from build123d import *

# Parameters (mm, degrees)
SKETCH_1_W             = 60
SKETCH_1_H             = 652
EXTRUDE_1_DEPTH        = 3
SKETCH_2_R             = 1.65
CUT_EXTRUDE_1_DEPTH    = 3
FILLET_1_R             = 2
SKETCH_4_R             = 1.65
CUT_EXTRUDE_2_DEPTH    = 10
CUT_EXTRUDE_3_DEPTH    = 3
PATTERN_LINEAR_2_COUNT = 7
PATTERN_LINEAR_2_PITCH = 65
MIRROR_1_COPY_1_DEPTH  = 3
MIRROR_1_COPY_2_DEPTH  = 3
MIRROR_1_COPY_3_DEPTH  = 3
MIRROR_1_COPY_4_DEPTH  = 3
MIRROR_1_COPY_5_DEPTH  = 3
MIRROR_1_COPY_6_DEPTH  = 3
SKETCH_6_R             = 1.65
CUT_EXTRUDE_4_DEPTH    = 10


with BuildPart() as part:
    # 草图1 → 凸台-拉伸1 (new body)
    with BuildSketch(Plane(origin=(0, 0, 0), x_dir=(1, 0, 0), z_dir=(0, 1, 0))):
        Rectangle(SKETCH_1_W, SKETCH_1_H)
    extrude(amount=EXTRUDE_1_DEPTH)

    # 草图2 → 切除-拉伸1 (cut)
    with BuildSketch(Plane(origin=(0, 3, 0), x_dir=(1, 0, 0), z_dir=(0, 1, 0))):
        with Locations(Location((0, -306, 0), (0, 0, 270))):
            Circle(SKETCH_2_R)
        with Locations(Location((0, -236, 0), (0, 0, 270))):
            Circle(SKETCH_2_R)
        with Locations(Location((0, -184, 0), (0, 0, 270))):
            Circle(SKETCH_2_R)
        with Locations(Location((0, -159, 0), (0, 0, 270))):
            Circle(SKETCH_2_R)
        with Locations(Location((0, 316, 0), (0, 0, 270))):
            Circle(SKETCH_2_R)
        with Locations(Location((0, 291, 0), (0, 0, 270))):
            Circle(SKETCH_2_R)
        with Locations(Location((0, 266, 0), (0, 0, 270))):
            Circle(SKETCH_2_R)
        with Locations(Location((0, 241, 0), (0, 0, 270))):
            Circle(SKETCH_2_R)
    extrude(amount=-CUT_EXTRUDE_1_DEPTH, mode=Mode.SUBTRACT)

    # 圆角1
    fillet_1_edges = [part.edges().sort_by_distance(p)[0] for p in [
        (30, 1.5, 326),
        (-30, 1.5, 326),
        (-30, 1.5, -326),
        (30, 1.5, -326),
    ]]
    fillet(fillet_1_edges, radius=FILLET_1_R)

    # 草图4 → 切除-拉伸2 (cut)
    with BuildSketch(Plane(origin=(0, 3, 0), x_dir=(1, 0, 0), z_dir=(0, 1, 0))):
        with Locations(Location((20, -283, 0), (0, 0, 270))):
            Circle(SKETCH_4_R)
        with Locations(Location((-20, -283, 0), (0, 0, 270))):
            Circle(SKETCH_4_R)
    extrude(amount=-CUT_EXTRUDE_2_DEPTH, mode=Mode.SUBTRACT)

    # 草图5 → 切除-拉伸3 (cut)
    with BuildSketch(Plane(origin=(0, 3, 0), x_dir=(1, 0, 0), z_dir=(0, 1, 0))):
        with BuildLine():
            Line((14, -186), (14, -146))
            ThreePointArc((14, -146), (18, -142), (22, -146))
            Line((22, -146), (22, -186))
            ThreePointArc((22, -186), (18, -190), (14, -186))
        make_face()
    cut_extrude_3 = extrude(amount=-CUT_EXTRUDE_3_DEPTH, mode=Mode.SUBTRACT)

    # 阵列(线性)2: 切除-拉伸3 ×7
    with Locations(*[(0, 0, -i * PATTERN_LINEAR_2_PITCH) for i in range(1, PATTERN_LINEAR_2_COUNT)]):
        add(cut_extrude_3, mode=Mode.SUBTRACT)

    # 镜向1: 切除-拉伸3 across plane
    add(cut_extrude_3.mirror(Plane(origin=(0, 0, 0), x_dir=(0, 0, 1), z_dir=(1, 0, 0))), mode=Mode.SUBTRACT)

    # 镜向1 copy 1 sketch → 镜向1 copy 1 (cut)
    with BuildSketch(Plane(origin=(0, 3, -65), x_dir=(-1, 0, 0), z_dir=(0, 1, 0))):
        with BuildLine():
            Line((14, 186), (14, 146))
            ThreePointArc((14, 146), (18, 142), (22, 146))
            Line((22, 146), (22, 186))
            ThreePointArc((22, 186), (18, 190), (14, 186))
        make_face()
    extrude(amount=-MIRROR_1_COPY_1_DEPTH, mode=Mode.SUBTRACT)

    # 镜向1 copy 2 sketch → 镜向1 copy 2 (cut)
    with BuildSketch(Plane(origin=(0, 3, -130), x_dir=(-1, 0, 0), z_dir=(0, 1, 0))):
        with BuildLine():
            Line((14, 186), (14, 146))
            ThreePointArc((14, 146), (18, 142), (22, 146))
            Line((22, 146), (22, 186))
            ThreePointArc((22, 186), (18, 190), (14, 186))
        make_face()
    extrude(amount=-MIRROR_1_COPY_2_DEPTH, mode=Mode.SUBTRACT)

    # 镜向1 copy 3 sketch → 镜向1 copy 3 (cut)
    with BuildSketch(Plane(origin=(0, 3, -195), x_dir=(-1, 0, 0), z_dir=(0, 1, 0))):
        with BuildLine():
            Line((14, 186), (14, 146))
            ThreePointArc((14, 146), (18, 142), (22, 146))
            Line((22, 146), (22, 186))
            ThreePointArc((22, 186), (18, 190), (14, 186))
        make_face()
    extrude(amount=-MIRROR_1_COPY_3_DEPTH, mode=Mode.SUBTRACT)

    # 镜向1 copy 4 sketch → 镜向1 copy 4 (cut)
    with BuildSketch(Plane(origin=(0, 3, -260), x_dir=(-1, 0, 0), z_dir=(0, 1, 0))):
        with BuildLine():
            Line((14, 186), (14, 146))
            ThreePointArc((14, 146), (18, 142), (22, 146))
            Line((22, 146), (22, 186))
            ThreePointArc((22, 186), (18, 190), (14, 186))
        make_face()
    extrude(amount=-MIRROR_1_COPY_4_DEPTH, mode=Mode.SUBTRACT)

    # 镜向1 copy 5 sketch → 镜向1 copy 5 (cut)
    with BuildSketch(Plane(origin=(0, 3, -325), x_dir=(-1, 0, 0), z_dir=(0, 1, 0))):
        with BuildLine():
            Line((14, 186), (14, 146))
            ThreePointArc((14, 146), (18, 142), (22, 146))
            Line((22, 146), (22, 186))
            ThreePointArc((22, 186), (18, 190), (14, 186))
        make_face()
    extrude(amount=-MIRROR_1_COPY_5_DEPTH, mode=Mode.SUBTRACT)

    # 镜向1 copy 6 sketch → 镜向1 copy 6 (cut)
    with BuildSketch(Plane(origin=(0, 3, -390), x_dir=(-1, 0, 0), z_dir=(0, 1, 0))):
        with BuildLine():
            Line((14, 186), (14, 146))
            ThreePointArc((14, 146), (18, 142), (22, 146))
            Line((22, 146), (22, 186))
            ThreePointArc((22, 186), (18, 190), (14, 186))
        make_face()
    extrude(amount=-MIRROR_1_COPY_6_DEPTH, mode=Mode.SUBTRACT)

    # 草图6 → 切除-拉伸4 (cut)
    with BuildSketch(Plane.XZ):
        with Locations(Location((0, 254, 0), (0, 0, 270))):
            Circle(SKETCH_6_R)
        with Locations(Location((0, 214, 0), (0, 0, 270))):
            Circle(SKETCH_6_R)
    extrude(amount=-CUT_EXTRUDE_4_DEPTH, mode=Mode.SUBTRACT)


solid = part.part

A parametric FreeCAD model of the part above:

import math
import FreeCAD as App
import Part
import Sketcher

V = App.Vector
Q = App.Units.Quantity


def edges_at(feature, points):
    """Names of the edges that pass closest to the given points."""
    edges = feature.Shape.Edges
    near = lambda p: min(range(len(edges)), key=lambda i: edges[i].distToShape(Part.Vertex(*p))[0])
    return sorted({f"Edge{near(p) + 1}" for p in points})


def add_polygon(sketch, points):
    """Adds a closed chain of lines whose ends are joined by coincident constraints."""
    first, n = sketch.GeometryCount, len(points)
    for a, b in zip(points, points[1:] + points[:1]):
        sketch.addGeometry(Part.LineSegment(App.Vector(*a, 0), App.Vector(*b, 0)), False)
    for i in range(n):
        sketch.addConstraint(Sketcher.Constraint("Coincident", first + i, 2, first + (i + 1) % n, 1))

doc = App.newDocument("Part")
body = doc.addObject("PartDesign::Body", "Body")

# Sketch on XZ plane
sketch1 = body.newObject("Sketcher::SketchObject", "Sketch")
sketch1.AttachmentSupport = (doc.getObject("XZ_Plane"), [""])
sketch1.MapMode = "FlatFace"
add_polygon(sketch1, [(-30, -326), (-30, 326), (30, 326), (30, -326)])  # lines 0-3
sketch1.addConstraint(Sketcher.Constraint("Vertical", 0))
sketch1.addConstraint(Sketcher.Constraint("Horizontal", 1))
sketch1.addConstraint(Sketcher.Constraint("Vertical", 2))
sketch1.addConstraint(Sketcher.Constraint("Horizontal", 3))
sketch1.addConstraint(Sketcher.Constraint("Symmetric", 0, 2, 2, 2, -1, 1))
sketch1.addConstraint(Sketcher.Constraint("DistanceX", 1, 1, 1, 2, Q("60 mm")))
sketch1.addConstraint(Sketcher.Constraint("DistanceY", 0, 1, 0, 2, Q("652 mm")))
pad1 = body.newObject("PartDesign::Pad", "Pad")
pad1.Profile = sketch1
pad1.Length = 3
pad1.Reversed = True

# Sketch on XZ plane
sketch2 = body.newObject("Sketcher::SketchObject", "Sketch001")
sketch2.AttachmentSupport = (doc.getObject("XZ_Plane"), [""])
sketch2.MapMode = "FlatFace"
sketch2.AttachmentOffset = App.Placement(V(0, 0, -3), App.Rotation())
sketch2.addGeometry(Part.Circle(V(0, 306, 0), V(0, 0, 1), 1.65), False)
sketch2.addGeometry(Part.Circle(V(0, 236, 0), V(0, 0, 1), 1.65), False)
sketch2.addGeometry(Part.Circle(V(0, 184, 0), V(0, 0, 1), 1.65), False)
sketch2.addGeometry(Part.Circle(V(0, 159, 0), V(0, 0, 1), 1.65), False)
sketch2.addGeometry(Part.Circle(V(0, -316, 0), V(0, 0, 1), 1.65), False)
sketch2.addGeometry(Part.Circle(V(0, -291, 0), V(0, 0, 1), 1.65), False)
sketch2.addGeometry(Part.Circle(V(0, -266, 0), V(0, 0, 1), 1.65), False)
sketch2.addGeometry(Part.Circle(V(0, -241, 0), V(0, 0, 1), 1.65), False)
sketch2.addConstraint(Sketcher.Constraint("Equal", 0, 1))
sketch2.addConstraint(Sketcher.Constraint("Equal", 1, 2))
sketch2.addConstraint(Sketcher.Constraint("Equal", 2, 3))
sketch2.addConstraint(Sketcher.Constraint("Equal", 3, 4))
sketch2.addConstraint(Sketcher.Constraint("Equal", 4, 5))
sketch2.addConstraint(Sketcher.Constraint("Equal", 5, 6))
sketch2.addConstraint(Sketcher.Constraint("Equal", 6, 7))
sketch2.addConstraint(Sketcher.Constraint("PointOnObject", 0, 3, -2))
sketch2.addConstraint(Sketcher.Constraint("PointOnObject", 1, 3, -2))
sketch2.addConstraint(Sketcher.Constraint("PointOnObject", 2, 3, -2))
sketch2.addConstraint(Sketcher.Constraint("PointOnObject", 3, 3, -2))
sketch2.addConstraint(Sketcher.Constraint("PointOnObject", 4, 3, -2))
sketch2.addConstraint(Sketcher.Constraint("PointOnObject", 5, 3, -2))
sketch2.addConstraint(Sketcher.Constraint("PointOnObject", 6, 3, -2))
sketch2.addConstraint(Sketcher.Constraint("PointOnObject", 7, 3, -2))
sketch2.addConstraint(Sketcher.Constraint("Diameter", 0, Q("3.3 mm")))
sketch2.addConstraint(Sketcher.Constraint("DistanceY", -1, 1, 0, 3, Q("306 mm")))
sketch2.addConstraint(Sketcher.Constraint("DistanceY", -1, 1, 1, 3, Q("236 mm")))
sketch2.addConstraint(Sketcher.Constraint("DistanceY", -1, 1, 2, 3, Q("184 mm")))
sketch2.addConstraint(Sketcher.Constraint("DistanceY", -1, 1, 3, 3, Q("159 mm")))
sketch2.addConstraint(Sketcher.Constraint("DistanceY", 4, 3, -1, 1, Q("316 mm")))
sketch2.addConstraint(Sketcher.Constraint("DistanceY", 5, 3, -1, 1, Q("291 mm")))
sketch2.addConstraint(Sketcher.Constraint("DistanceY", 6, 3, -1, 1, Q("266 mm")))
sketch2.addConstraint(Sketcher.Constraint("DistanceY", 7, 3, -1, 1, Q("241 mm")))
pocket1 = body.newObject("PartDesign::Pocket", "Pocket")
pocket1.Profile = sketch2
pocket1.Length = 3
pocket1.Reversed = True
doc.recompute()

fillet = body.newObject("PartDesign::Fillet", "Fillet")
fillet.Base = (pocket1, edges_at(pocket1, [
    (30, 1.5, 326),
    (-30, 1.5, 326),
    (-30, 1.5, -326),
    (30, 1.5, -326),
]))
fillet.Radius = 2

# Sketch on XZ plane
sketch3 = body.newObject("Sketcher::SketchObject", "Sketch002")
sketch3.AttachmentSupport = (doc.getObject("XZ_Plane"), [""])
sketch3.MapMode = "FlatFace"
sketch3.AttachmentOffset = App.Placement(V(0, 0, -3), App.Rotation())
sketch3.addGeometry(Part.Circle(V(20, 283, 0), V(0, 0, 1), 1.65), False)
sketch3.addGeometry(Part.Circle(V(-20, 283, 0), V(0, 0, 1), 1.65), False)
sketch3.addConstraint(Sketcher.Constraint("Equal", 0, 1))
sketch3.addConstraint(Sketcher.Constraint("Symmetric", 0, 3, 1, 3, -2))
sketch3.addConstraint(Sketcher.Constraint("Diameter", 0, Q("3.3 mm")))
sketch3.addConstraint(Sketcher.Constraint("DistanceX", -1, 1, 0, 3, Q("20 mm")))
sketch3.addConstraint(Sketcher.Constraint("DistanceY", -1, 1, 0, 3, Q("283 mm")))
pocket2 = body.newObject("PartDesign::Pocket", "Pocket001")
pocket2.Profile = sketch3
pocket2.Length = 10
pocket2.Reversed = True

# Sketch on XZ plane
sketch4 = body.newObject("Sketcher::SketchObject", "Sketch003")
sketch4.AttachmentSupport = (doc.getObject("XZ_Plane"), [""])
sketch4.MapMode = "FlatFace"
sketch4.AttachmentOffset = App.Placement(V(0, 0, -3), App.Rotation())
sketch4.addGeometry(Part.LineSegment(V(14, 146, 0), V(14, 186, 0)), False)
sketch4.addGeometry(Part.ArcOfCircle(Part.Circle(V(18, 186, 0), V(0, 0, 1), 4), math.radians(0), math.radians(180)), False)
sketch4.addGeometry(Part.LineSegment(V(22, 186, 0), V(22, 146, 0)), False)
sketch4.addGeometry(Part.ArcOfCircle(Part.Circle(V(18, 146, 0), V(0, 0, 1), 4), math.radians(180), math.radians(360)), False)
sketch4.addConstraint(Sketcher.Constraint("Tangent", 0, 2, 1, 2))
sketch4.addConstraint(Sketcher.Constraint("Tangent", 1, 1, 2, 1))
sketch4.addConstraint(Sketcher.Constraint("Tangent", 2, 2, 3, 2))
sketch4.addConstraint(Sketcher.Constraint("Tangent", 3, 1, 0, 1))
sketch4.addConstraint(Sketcher.Constraint("Vertical", 0))
sketch4.addConstraint(Sketcher.Constraint("Vertical", 2))
sketch4.addConstraint(Sketcher.Constraint("Radius", 1, Q("4 mm")))
sketch4.addConstraint(Sketcher.Constraint("DistanceY", 0, 1, 0, 2, Q("40 mm")))
sketch4.addConstraint(Sketcher.Constraint("DistanceX", -1, 1, 1, 3, Q("18 mm")))
sketch4.addConstraint(Sketcher.Constraint("DistanceY", -1, 1, 1, 3, Q("186 mm")))
pocket3 = body.newObject("PartDesign::Pocket", "Pocket002")
pocket3.Profile = sketch4
pocket3.Length = 3
pocket3.Reversed = True
doc.recompute()

linearpattern = body.newObject("PartDesign::LinearPattern", "LinearPattern")
linearpattern.Originals = [pocket3]
linearpattern.Direction = (doc.getObject("Z_Axis"), [""])
linearpattern.Mode = "offset"
linearpattern.Offset = 65
linearpattern.Occurrences = 7
linearpattern.Reversed = True
body.Tip = linearpattern
doc.recompute()

mirrored = body.newObject("PartDesign::Mirrored", "Mirrored")
mirrored.Originals = [pocket3]
mirrored.MirrorPlane = (doc.getObject("YZ_Plane"), [""])
body.Tip = mirrored

# Sketch on XZ plane
sketch5 = body.newObject("Sketcher::SketchObject", "Sketch004")
sketch5.AttachmentSupport = (doc.getObject("XZ_Plane"), [""])
sketch5.MapMode = "FlatFace"
sketch5.AttachmentOffset = App.Placement(V(0, 0, -3), App.Rotation())
sketch5.addGeometry(Part.LineSegment(V(-14, 121, 0), V(-14, 81, 0)), False)
sketch5.addGeometry(Part.ArcOfCircle(Part.Circle(V(-18, 81, 0), V(0, 0, 1), 4), math.radians(180), math.radians(360)), False)
sketch5.addGeometry(Part.LineSegment(V(-22, 81, 0), V(-22, 121, 0)), False)
sketch5.addGeometry(Part.ArcOfCircle(Part.Circle(V(-18, 121, 0), V(0, 0, 1), 4), math.radians(0), math.radians(180)), False)
sketch5.addConstraint(Sketcher.Constraint("Tangent", 0, 2, 1, 2))
sketch5.addConstraint(Sketcher.Constraint("Tangent", 1, 1, 2, 1))
sketch5.addConstraint(Sketcher.Constraint("Tangent", 2, 2, 3, 2))
sketch5.addConstraint(Sketcher.Constraint("Tangent", 3, 1, 0, 1))
sketch5.addConstraint(Sketcher.Constraint("Vertical", 0))
sketch5.addConstraint(Sketcher.Constraint("Vertical", 2))
sketch5.addConstraint(Sketcher.Constraint("Radius", 1, Q("4 mm")))
sketch5.addConstraint(Sketcher.Constraint("DistanceY", 0, 2, 0, 1, Q("40 mm")))
sketch5.addConstraint(Sketcher.Constraint("DistanceX", 1, 3, -1, 1, Q("18 mm")))
sketch5.addConstraint(Sketcher.Constraint("DistanceY", -1, 1, 1, 3, Q("81 mm")))
pocket4 = body.newObject("PartDesign::Pocket", "Pocket003")
pocket4.Profile = sketch5
pocket4.Length = 3
pocket4.Reversed = True

# Sketch on XZ plane
sketch6 = body.newObject("Sketcher::SketchObject", "Sketch005")
sketch6.AttachmentSupport = (doc.getObject("XZ_Plane"), [""])
sketch6.MapMode = "FlatFace"
sketch6.AttachmentOffset = App.Placement(V(0, 0, -3), App.Rotation())
sketch6.addGeometry(Part.LineSegment(V(-14, 56, 0), V(-14, 16, 0)), False)
sketch6.addGeometry(Part.ArcOfCircle(Part.Circle(V(-18, 16, 0), V(0, 0, 1), 4), math.radians(180), math.radians(360)), False)
sketch6.addGeometry(Part.LineSegment(V(-22, 16, 0), V(-22, 56, 0)), False)
sketch6.addGeometry(Part.ArcOfCircle(Part.Circle(V(-18, 56, 0), V(0, 0, 1), 4), math.radians(0), math.radians(180)), False)
sketch6.addConstraint(Sketcher.Constraint("Tangent", 0, 2, 1, 2))
sketch6.addConstraint(Sketcher.Constraint("Tangent", 1, 1, 2, 1))
sketch6.addConstraint(Sketcher.Constraint("Tangent", 2, 2, 3, 2))
sketch6.addConstraint(Sketcher.Constraint("Tangent", 3, 1, 0, 1))
sketch6.addConstraint(Sketcher.Constraint("Vertical", 0))
sketch6.addConstraint(Sketcher.Constraint("Vertical", 2))
sketch6.addConstraint(Sketcher.Constraint("Radius", 1, Q("4 mm")))
sketch6.addConstraint(Sketcher.Constraint("DistanceY", 0, 2, 0, 1, Q("40 mm")))
sketch6.addConstraint(Sketcher.Constraint("DistanceX", 1, 3, -1, 1, Q("18 mm")))
sketch6.addConstraint(Sketcher.Constraint("DistanceY", -1, 1, 1, 3, Q("16 mm")))
pocket5 = body.newObject("PartDesign::Pocket", "Pocket004")
pocket5.Profile = sketch6
pocket5.Length = 3
pocket5.Reversed = True

# Sketch on XZ plane
sketch7 = body.newObject("Sketcher::SketchObject", "Sketch006")
sketch7.AttachmentSupport = (doc.getObject("XZ_Plane"), [""])
sketch7.MapMode = "FlatFace"
sketch7.AttachmentOffset = App.Placement(V(0, 0, -3), App.Rotation())
sketch7.addGeometry(Part.LineSegment(V(-14, -9, 0), V(-14, -49, 0)), False)
sketch7.addGeometry(Part.ArcOfCircle(Part.Circle(V(-18, -49, 0), V(0, 0, 1), 4), math.radians(180), math.radians(360)), False)
sketch7.addGeometry(Part.LineSegment(V(-22, -49, 0), V(-22, -9, 0)), False)
sketch7.addGeometry(Part.ArcOfCircle(Part.Circle(V(-18, -9, 0), V(0, 0, 1), 4), math.radians(0), math.radians(180)), False)
sketch7.addConstraint(Sketcher.Constraint("Tangent", 0, 2, 1, 2))
sketch7.addConstraint(Sketcher.Constraint("Tangent", 1, 1, 2, 1))
sketch7.addConstraint(Sketcher.Constraint("Tangent", 2, 2, 3, 2))
sketch7.addConstraint(Sketcher.Constraint("Tangent", 3, 1, 0, 1))
sketch7.addConstraint(Sketcher.Constraint("Vertical", 0))
sketch7.addConstraint(Sketcher.Constraint("Vertical", 2))
sketch7.addConstraint(Sketcher.Constraint("Radius", 1, Q("4 mm")))
sketch7.addConstraint(Sketcher.Constraint("DistanceY", 0, 2, 0, 1, Q("40 mm")))
sketch7.addConstraint(Sketcher.Constraint("DistanceX", 1, 3, -1, 1, Q("18 mm")))
sketch7.addConstraint(Sketcher.Constraint("DistanceY", 1, 3, -1, 1, Q("49 mm")))
pocket6 = body.newObject("PartDesign::Pocket", "Pocket005")
pocket6.Profile = sketch7
pocket6.Length = 3
pocket6.Reversed = True

# Sketch on XZ plane
sketch8 = body.newObject("Sketcher::SketchObject", "Sketch007")
sketch8.AttachmentSupport = (doc.getObject("XZ_Plane"), [""])
sketch8.MapMode = "FlatFace"
sketch8.AttachmentOffset = App.Placement(V(0, 0, -3), App.Rotation())
sketch8.addGeometry(Part.LineSegment(V(-14, -74, 0), V(-14, -114, 0)), False)
sketch8.addGeometry(Part.ArcOfCircle(Part.Circle(V(-18, -114, 0), V(0, 0, 1), 4), math.radians(180), math.radians(360)), False)
sketch8.addGeometry(Part.LineSegment(V(-22, -114, 0), V(-22, -74, 0)), False)
sketch8.addGeometry(Part.ArcOfCircle(Part.Circle(V(-18, -74, 0), V(0, 0, 1), 4), math.radians(0), math.radians(180)), False)
sketch8.addConstraint(Sketcher.Constraint("Tangent", 0, 2, 1, 2))
sketch8.addConstraint(Sketcher.Constraint("Tangent", 1, 1, 2, 1))
sketch8.addConstraint(Sketcher.Constraint("Tangent", 2, 2, 3, 2))
sketch8.addConstraint(Sketcher.Constraint("Tangent", 3, 1, 0, 1))
sketch8.addConstraint(Sketcher.Constraint("Vertical", 0))
sketch8.addConstraint(Sketcher.Constraint("Vertical", 2))
sketch8.addConstraint(Sketcher.Constraint("Radius", 1, Q("4 mm")))
sketch8.addConstraint(Sketcher.Constraint("DistanceY", 0, 2, 0, 1, Q("40 mm")))
sketch8.addConstraint(Sketcher.Constraint("DistanceX", 1, 3, -1, 1, Q("18 mm")))
sketch8.addConstraint(Sketcher.Constraint("DistanceY", 1, 3, -1, 1, Q("114 mm")))
pocket7 = body.newObject("PartDesign::Pocket", "Pocket006")
pocket7.Profile = sketch8
pocket7.Length = 3
pocket7.Reversed = True

# Sketch on XZ plane
sketch9 = body.newObject("Sketcher::SketchObject", "Sketch008")
sketch9.AttachmentSupport = (doc.getObject("XZ_Plane"), [""])
sketch9.MapMode = "FlatFace"
sketch9.AttachmentOffset = App.Placement(V(0, 0, -3), App.Rotation())
sketch9.addGeometry(Part.LineSegment(V(-14, -139, 0), V(-14, -179, 0)), False)
sketch9.addGeometry(Part.ArcOfCircle(Part.Circle(V(-18, -179, 0), V(0, 0, 1), 4), math.radians(180), math.radians(360)), False)
sketch9.addGeometry(Part.LineSegment(V(-22, -179, 0), V(-22, -139, 0)), False)
sketch9.addGeometry(Part.ArcOfCircle(Part.Circle(V(-18, -139, 0), V(0, 0, 1), 4), math.radians(0), math.radians(180)), False)
sketch9.addConstraint(Sketcher.Constraint("Tangent", 0, 2, 1, 2))
sketch9.addConstraint(Sketcher.Constraint("Tangent", 1, 1, 2, 1))
sketch9.addConstraint(Sketcher.Constraint("Tangent", 2, 2, 3, 2))
sketch9.addConstraint(Sketcher.Constraint("Tangent", 3, 1, 0, 1))
sketch9.addConstraint(Sketcher.Constraint("Vertical", 0))
sketch9.addConstraint(Sketcher.Constraint("Vertical", 2))
sketch9.addConstraint(Sketcher.Constraint("Radius", 1, Q("4 mm")))
sketch9.addConstraint(Sketcher.Constraint("DistanceY", 0, 2, 0, 1, Q("40 mm")))
sketch9.addConstraint(Sketcher.Constraint("DistanceX", 1, 3, -1, 1, Q("18 mm")))
sketch9.addConstraint(Sketcher.Constraint("DistanceY", 1, 3, -1, 1, Q("179 mm")))
pocket8 = body.newObject("PartDesign::Pocket", "Pocket007")
pocket8.Profile = sketch9
pocket8.Length = 3
pocket8.Reversed = True

# Sketch on XZ plane
sketch10 = body.newObject("Sketcher::SketchObject", "Sketch009")
sketch10.AttachmentSupport = (doc.getObject("XZ_Plane"), [""])
sketch10.MapMode = "FlatFace"
sketch10.AttachmentOffset = App.Placement(V(0, 0, -3), App.Rotation())
sketch10.addGeometry(Part.LineSegment(V(-14, -204, 0), V(-14, -244, 0)), False)
sketch10.addGeometry(Part.ArcOfCircle(Part.Circle(V(-18, -244, 0), V(0, 0, 1), 4), math.radians(180), math.radians(360)), False)
sketch10.addGeometry(Part.LineSegment(V(-22, -244, 0), V(-22, -204, 0)), False)
sketch10.addGeometry(Part.ArcOfCircle(Part.Circle(V(-18, -204, 0), V(0, 0, 1), 4), math.radians(0), math.radians(180)), False)
sketch10.addConstraint(Sketcher.Constraint("Tangent", 0, 2, 1, 2))
sketch10.addConstraint(Sketcher.Constraint("Tangent", 1, 1, 2, 1))
sketch10.addConstraint(Sketcher.Constraint("Tangent", 2, 2, 3, 2))
sketch10.addConstraint(Sketcher.Constraint("Tangent", 3, 1, 0, 1))
sketch10.addConstraint(Sketcher.Constraint("Vertical", 0))
sketch10.addConstraint(Sketcher.Constraint("Vertical", 2))
sketch10.addConstraint(Sketcher.Constraint("Radius", 1, Q("4 mm")))
sketch10.addConstraint(Sketcher.Constraint("DistanceY", 0, 2, 0, 1, Q("40 mm")))
sketch10.addConstraint(Sketcher.Constraint("DistanceX", 1, 3, -1, 1, Q("18 mm")))
sketch10.addConstraint(Sketcher.Constraint("DistanceY", 1, 3, -1, 1, Q("244 mm")))
pocket9 = body.newObject("PartDesign::Pocket", "Pocket008")
pocket9.Profile = sketch10
pocket9.Length = 3
pocket9.Reversed = True

# Sketch on XZ plane
sketch11 = body.newObject("Sketcher::SketchObject", "Sketch010")
sketch11.AttachmentSupport = (doc.getObject("XZ_Plane"), [""])
sketch11.MapMode = "FlatFace"
sketch11.addGeometry(Part.Circle(V(0, 254, 0), V(0, 0, 1), 1.65), False)
sketch11.addGeometry(Part.Circle(V(0, 214, 0), V(0, 0, 1), 1.65), False)
sketch11.addConstraint(Sketcher.Constraint("Equal", 0, 1))
sketch11.addConstraint(Sketcher.Constraint("PointOnObject", 0, 3, -2))
sketch11.addConstraint(Sketcher.Constraint("PointOnObject", 1, 3, -2))
sketch11.addConstraint(Sketcher.Constraint("Diameter", 0, Q("3.3 mm")))
sketch11.addConstraint(Sketcher.Constraint("DistanceY", -1, 1, 0, 3, Q("254 mm")))
sketch11.addConstraint(Sketcher.Constraint("DistanceY", -1, 1, 1, 3, Q("214 mm")))
pocket10 = body.newObject("PartDesign::Pocket", "Pocket009")
pocket10.Profile = sketch11
pocket10.Length = 10

doc.recompute()
